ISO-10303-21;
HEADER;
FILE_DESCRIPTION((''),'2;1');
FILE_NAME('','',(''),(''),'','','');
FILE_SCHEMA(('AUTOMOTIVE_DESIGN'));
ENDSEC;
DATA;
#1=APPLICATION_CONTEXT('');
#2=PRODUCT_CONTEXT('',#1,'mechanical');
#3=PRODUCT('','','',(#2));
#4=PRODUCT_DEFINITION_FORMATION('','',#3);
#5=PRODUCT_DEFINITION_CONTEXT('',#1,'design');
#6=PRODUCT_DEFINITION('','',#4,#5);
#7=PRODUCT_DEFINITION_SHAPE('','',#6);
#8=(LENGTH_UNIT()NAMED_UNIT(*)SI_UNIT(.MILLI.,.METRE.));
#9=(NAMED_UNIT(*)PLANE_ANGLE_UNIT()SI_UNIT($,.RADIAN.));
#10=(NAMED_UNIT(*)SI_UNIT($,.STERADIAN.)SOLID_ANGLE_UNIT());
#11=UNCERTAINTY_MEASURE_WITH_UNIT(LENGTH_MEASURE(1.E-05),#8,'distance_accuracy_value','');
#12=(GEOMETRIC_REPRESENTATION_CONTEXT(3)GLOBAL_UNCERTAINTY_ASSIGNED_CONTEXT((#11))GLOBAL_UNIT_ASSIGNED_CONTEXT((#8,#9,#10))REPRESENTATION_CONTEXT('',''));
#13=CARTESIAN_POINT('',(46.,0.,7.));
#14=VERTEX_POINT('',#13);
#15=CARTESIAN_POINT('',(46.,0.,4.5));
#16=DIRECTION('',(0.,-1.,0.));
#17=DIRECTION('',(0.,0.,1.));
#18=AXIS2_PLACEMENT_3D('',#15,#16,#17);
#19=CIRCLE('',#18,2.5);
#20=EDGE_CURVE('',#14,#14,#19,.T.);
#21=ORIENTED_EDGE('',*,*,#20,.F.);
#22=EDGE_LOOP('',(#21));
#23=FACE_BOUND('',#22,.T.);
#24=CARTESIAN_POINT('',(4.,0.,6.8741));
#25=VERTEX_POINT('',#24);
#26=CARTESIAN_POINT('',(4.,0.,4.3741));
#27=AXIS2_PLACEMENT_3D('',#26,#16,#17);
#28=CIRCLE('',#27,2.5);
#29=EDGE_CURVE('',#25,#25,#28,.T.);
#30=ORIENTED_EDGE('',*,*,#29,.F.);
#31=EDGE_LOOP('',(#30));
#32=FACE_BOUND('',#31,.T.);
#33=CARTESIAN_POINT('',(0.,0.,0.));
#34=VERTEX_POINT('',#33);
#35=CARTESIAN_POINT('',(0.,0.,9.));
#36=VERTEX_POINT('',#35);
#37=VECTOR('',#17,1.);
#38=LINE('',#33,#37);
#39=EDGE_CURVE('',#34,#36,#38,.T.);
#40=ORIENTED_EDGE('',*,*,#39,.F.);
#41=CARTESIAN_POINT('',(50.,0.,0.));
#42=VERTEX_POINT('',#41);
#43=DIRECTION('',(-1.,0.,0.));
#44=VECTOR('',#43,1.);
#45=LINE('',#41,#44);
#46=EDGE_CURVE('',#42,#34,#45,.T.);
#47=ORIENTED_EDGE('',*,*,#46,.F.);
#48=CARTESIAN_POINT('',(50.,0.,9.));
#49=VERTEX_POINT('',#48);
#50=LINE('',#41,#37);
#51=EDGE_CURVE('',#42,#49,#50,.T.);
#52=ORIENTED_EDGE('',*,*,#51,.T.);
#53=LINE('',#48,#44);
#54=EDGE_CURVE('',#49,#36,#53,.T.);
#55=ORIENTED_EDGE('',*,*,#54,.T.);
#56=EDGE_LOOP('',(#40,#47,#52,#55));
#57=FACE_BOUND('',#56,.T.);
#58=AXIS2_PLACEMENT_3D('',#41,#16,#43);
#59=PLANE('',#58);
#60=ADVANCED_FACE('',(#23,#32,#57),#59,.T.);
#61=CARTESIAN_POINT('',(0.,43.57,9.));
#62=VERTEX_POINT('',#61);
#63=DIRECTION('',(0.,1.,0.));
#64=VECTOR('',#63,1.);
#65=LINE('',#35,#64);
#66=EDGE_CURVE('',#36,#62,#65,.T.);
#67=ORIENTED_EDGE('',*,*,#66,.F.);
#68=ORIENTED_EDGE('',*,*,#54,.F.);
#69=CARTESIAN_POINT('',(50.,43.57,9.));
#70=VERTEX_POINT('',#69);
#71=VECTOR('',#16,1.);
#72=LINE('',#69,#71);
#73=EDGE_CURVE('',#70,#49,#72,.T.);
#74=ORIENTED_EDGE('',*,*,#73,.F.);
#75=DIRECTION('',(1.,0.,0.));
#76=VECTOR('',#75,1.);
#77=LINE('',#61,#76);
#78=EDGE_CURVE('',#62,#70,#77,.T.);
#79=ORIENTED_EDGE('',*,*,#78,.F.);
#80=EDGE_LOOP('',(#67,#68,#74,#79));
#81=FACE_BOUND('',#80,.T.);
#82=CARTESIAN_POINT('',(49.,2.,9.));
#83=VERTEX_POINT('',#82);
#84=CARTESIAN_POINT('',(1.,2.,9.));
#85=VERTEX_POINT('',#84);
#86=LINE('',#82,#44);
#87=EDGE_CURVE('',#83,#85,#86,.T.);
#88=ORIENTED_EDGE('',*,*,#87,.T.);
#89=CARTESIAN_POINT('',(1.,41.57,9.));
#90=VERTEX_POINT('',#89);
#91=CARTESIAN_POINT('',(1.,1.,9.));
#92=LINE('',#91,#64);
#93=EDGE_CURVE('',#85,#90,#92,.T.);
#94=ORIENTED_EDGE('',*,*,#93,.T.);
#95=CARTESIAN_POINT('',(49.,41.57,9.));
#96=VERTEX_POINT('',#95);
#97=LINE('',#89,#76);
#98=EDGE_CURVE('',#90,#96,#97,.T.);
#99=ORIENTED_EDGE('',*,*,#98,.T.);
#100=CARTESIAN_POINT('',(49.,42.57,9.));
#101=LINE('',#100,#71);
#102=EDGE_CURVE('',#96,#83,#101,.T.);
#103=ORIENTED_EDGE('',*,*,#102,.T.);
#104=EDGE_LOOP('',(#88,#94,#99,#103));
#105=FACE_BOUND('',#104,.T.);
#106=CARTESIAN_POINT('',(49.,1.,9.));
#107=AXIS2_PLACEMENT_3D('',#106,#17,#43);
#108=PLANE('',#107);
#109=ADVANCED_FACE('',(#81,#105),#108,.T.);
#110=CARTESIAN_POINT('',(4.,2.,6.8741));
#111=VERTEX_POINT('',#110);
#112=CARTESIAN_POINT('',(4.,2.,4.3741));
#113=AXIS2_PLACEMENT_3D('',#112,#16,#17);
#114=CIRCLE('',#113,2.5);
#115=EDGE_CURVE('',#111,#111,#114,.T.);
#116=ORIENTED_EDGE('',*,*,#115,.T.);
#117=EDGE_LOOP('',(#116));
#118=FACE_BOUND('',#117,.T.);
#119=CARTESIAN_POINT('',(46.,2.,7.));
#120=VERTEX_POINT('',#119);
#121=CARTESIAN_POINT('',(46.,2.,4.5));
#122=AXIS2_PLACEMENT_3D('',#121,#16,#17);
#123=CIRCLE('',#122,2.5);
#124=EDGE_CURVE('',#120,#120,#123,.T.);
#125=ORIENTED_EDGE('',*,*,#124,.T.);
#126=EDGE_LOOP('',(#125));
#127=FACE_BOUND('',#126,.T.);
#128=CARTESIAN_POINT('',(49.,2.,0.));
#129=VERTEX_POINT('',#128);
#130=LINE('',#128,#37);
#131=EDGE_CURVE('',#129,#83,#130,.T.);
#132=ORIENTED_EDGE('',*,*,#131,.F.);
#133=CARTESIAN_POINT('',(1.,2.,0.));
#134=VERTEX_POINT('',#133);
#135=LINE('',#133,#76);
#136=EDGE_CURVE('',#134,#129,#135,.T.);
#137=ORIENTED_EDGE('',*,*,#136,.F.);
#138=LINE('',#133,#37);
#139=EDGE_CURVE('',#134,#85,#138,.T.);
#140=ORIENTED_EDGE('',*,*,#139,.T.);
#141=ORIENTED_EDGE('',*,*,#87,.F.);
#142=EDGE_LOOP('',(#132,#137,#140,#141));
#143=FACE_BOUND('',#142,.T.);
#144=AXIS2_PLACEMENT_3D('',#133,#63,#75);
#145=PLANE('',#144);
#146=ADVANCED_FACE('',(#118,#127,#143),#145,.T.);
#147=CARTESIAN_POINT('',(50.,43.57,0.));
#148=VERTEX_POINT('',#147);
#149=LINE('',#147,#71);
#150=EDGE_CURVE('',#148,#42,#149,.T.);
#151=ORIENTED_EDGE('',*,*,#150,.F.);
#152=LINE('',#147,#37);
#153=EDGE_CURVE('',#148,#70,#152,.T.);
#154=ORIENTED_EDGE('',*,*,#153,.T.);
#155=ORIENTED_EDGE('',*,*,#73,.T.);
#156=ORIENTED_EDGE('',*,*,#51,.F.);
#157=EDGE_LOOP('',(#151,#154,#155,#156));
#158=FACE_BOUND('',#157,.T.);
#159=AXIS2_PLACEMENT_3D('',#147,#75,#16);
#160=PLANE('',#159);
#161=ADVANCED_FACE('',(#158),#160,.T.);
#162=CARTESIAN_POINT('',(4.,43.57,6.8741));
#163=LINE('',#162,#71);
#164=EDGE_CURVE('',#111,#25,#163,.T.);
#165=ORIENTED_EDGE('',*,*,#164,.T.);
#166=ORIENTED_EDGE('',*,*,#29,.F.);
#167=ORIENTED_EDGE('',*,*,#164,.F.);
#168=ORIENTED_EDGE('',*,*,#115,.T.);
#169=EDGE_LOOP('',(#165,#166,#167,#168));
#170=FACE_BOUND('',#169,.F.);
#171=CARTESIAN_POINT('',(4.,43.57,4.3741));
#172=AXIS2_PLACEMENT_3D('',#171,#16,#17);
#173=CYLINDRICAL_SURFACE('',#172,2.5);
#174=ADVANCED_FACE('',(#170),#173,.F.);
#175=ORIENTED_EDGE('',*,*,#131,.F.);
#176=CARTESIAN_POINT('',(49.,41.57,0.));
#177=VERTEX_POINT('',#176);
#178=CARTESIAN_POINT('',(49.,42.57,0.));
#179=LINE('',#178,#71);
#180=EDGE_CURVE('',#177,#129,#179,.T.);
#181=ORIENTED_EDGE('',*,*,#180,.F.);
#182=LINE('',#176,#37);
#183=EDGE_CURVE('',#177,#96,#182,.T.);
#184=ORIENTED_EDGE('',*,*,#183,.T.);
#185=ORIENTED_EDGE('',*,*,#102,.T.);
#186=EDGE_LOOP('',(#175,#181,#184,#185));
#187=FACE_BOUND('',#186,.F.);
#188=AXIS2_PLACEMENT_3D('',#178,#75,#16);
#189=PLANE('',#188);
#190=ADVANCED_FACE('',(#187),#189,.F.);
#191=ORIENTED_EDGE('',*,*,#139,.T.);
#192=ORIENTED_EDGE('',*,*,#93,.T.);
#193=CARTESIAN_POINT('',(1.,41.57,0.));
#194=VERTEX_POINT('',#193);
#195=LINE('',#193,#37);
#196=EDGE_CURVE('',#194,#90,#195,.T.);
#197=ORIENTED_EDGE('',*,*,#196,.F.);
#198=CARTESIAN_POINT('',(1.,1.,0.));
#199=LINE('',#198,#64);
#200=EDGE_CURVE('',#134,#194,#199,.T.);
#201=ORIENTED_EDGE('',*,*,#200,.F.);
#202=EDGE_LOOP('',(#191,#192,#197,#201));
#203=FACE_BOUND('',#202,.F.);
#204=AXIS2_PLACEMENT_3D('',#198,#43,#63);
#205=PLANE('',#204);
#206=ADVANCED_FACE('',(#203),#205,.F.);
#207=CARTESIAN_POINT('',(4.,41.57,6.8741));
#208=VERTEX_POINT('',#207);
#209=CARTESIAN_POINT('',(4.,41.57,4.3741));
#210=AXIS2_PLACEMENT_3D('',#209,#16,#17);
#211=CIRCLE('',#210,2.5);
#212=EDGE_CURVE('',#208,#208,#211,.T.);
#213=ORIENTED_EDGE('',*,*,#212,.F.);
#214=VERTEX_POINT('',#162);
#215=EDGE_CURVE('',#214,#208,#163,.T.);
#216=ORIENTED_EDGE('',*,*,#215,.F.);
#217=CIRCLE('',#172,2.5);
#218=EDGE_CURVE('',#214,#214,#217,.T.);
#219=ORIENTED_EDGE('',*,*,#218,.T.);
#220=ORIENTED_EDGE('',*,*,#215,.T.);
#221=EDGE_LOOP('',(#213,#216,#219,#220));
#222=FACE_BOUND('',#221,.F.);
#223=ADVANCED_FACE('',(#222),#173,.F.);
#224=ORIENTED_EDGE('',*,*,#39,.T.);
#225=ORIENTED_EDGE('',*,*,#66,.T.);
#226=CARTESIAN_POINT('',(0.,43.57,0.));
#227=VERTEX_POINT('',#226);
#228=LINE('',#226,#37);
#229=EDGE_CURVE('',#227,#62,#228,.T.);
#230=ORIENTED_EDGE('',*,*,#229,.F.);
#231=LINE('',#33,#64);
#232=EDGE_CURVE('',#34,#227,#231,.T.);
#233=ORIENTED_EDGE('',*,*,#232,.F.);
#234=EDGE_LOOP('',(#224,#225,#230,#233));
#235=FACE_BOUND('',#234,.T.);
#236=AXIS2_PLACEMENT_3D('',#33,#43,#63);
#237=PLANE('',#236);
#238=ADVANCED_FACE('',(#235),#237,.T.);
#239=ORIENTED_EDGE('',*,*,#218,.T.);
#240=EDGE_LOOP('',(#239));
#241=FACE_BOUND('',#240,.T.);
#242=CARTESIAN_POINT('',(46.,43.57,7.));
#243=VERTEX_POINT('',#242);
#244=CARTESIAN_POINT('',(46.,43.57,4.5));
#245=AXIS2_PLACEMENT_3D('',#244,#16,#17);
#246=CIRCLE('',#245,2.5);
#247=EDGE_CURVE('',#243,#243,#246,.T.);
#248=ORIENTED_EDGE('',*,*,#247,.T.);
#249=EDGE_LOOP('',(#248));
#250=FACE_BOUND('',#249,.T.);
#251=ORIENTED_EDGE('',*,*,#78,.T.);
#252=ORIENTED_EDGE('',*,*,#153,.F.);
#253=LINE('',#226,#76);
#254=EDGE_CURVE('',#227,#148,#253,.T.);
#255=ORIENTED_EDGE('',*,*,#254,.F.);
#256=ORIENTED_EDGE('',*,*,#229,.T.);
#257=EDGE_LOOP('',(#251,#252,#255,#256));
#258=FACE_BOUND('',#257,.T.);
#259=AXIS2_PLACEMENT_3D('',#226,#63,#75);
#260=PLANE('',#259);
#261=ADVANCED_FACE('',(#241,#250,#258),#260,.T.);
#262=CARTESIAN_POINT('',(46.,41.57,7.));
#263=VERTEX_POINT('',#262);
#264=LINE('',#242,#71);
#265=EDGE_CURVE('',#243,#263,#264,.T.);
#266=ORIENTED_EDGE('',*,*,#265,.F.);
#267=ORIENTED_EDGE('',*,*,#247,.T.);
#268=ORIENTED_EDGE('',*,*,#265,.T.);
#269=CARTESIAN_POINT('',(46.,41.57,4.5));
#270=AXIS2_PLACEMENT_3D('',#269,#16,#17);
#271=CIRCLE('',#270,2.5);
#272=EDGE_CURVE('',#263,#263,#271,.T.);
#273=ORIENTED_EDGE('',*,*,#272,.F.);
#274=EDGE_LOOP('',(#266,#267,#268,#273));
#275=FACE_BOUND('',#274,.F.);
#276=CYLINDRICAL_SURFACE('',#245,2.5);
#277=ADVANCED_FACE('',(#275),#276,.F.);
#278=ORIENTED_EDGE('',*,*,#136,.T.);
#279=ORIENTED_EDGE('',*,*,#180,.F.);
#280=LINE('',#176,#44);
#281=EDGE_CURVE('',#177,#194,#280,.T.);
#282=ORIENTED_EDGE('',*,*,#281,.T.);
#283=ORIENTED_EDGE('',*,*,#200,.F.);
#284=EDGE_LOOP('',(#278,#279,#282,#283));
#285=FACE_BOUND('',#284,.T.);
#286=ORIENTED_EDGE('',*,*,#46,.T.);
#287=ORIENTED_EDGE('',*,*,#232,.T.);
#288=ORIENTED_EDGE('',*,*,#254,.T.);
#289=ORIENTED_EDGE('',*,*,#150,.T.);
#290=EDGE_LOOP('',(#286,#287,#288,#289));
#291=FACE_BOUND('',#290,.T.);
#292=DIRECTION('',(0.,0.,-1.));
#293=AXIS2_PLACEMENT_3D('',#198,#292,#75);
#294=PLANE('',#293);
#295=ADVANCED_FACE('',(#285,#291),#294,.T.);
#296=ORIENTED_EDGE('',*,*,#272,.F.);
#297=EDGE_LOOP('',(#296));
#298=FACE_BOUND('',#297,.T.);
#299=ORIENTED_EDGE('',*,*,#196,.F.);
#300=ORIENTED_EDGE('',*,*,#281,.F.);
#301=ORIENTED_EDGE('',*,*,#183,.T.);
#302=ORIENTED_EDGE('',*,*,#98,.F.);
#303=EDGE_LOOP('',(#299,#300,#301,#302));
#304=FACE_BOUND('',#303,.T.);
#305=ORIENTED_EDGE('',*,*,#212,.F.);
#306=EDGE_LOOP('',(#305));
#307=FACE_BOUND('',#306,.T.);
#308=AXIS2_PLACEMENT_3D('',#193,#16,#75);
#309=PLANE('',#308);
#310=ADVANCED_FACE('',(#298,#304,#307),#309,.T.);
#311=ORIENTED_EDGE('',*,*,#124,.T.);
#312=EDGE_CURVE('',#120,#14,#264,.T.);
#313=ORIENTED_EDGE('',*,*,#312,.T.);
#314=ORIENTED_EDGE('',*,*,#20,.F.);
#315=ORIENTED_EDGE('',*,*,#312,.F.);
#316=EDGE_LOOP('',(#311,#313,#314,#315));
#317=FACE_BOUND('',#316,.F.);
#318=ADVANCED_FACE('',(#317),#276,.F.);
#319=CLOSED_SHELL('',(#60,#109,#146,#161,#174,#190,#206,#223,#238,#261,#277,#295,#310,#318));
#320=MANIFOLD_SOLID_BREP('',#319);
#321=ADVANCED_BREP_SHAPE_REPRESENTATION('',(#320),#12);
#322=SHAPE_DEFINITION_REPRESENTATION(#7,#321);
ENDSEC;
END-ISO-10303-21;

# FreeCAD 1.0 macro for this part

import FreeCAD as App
import Part
import Sketcher
Q = App.Units.Quantity


def add_polygon(sketch, points):
    """Adds a closed chain of lines whose ends are joined by coincident constraints."""
    first, n = sketch.GeometryCount, len(points)
    for a, b in zip(points, points[1:] + points[:1]):
        sketch.addGeometry(Part.LineSegment(App.Vector(*a, 0), App.Vector(*b, 0)), False)
    for i in range(n):
        sketch.addConstraint(Sketcher.Constraint("Coincident", first + i, 2, first + (i + 1) % n, 1))

doc = App.newDocument("Part")
body = doc.addObject("PartDesign::Body", "Body")

sketch1 = body.newObject("Sketcher::SketchObject", "Sketch")
sketch1.AttachmentSupport = (doc.getObject("XY_Plane"), [""])
sketch1.MapMode = "FlatFace"
add_polygon(sketch1, [(0, 44), (0, 0), (50, 0), (50, 44)])
add_polygon(sketch1, [(49, 1), (1, 1), (1, 43), (49, 43)])
sketch1.addConstraint([
    Sketcher.Constraint("Vertical", 0),
    Sketcher.Constraint("Horizontal", 1),
    Sketcher.Constraint("Vertical", 2),
    Sketcher.Constraint("Horizontal", 3),
    Sketcher.Constraint("Horizontal", 4),
    Sketcher.Constraint("Vertical", 5),
    Sketcher.Constraint("Horizontal", 6),
    Sketcher.Constraint("Vertical", 7),
    Sketcher.Constraint("Coincident", 0, 2, -1, 1),
    Sketcher.Constraint("DistanceX", 1, 1, 1, 2, Q("50 mm")),
    Sketcher.Constraint("DistanceX", 4, 2, 4, 1, Q("48 mm")),
    Sketcher.Constraint("DistanceY", 0, 2, 0, 1, Q("43.57 mm")),
    Sketcher.Constraint("DistanceY", 5, 1, 5, 2, Q("41.57 mm")),
    Sketcher.Constraint("DistanceX", -1, 1, 4, 2, Q("1 mm")),
    Sketcher.Constraint("DistanceY", -1, 1, 4, 2, Q("1 mm")),
])
pad1 = body.newObject("PartDesign::Pad", "Pad")
pad1.Profile = sketch1
pad1.Length = 9

sketch2 = body.newObject("Sketcher::SketchObject", "Sketch001")
sketch2.AttachmentSupport = (doc.getObject("XZ_Plane"), [""])
sketch2.MapMode = "FlatFace"
sketch2.AttachmentOffset = App.Placement(App.Vector(0, 0, -42.57), App.Rotation())
add_polygon(sketch2, [(1, 0), (49, 0), (49, 9), (1, 9)])
sketch2.addConstraint([
    Sketcher.Constraint("Horizontal", 0),
    Sketcher.Constraint("Vertical", 1),
    Sketcher.Constraint("Horizontal", 2),
    Sketcher.Constraint("Vertical", 3),
    Sketcher.Constraint("PointOnObject", 0, 2, -1),
    Sketcher.Constraint("DistanceX", 0, 1, 0, 2, Q("48 mm")),
    Sketcher.Constraint("DistanceY", 1, 1, 1, 2, Q("9 mm")),
    Sketcher.Constraint("DistanceX", -1, 1, 0, 2, Q("49 mm")),
])
pad2 = body.newObject("PartDesign::Pad", "Pad001")
pad2.Profile = sketch2
pad2.Length = 1

sketch3 = body.newObject("Sketcher::SketchObject", "Sketch002")
sketch3.AttachmentSupport = (doc.getObject("XZ_Plane"), [""])
sketch3.MapMode = "FlatFace"
sketch3.AttachmentOffset = App.Placement(App.Vector(0, 0, -1), App.Rotation())
add_polygon(sketch3, [(49, 0), (1, 0), (1, 9), (49, 9)])
sketch3.addConstraint([
    Sketcher.Constraint("Horizontal", 0),
    Sketcher.Constraint("Vertical", 1),
    Sketcher.Constraint("Horizontal", 2),
    Sketcher.Constraint("Vertical", 3),
    Sketcher.Constraint("PointOnObject", 0, 2, -1),
    Sketcher.Constraint("DistanceX", 0, 2, 0, 1, Q("48 mm")),
    Sketcher.Constraint("DistanceY", 1, 1, 1, 2, Q("9 mm")),
    Sketcher.Constraint("DistanceX", -1, 1, 0, 2, Q("1 mm")),
])
pad3 = body.newObject("PartDesign::Pad", "Pad002")
pad3.Profile = sketch3
pad3.Length = 1
pad3.Reversed = True

sketch4 = body.newObject("Sketcher::SketchObject", "Sketch003")
sketch4.AttachmentSupport = (doc.getObject("XZ_Plane"), [""])
sketch4.MapMode = "FlatFace"
sketch4.AttachmentOffset = App.Placement(App.Vector(0, 0, -43.57), App.Rotation())
sketch4.addGeometry([
    Part.Circle(App.Vector(4, 4.4, 0), App.Vector(0, 0, 1), 2.5),
    Part.Circle(App.Vector(46, 4.5, 0), App.Vector(0, 0, 1), 2.5),
], False)
sketch4.addConstraint([
    Sketcher.Constraint("Equal", 0, 1),
    Sketcher.Constraint("Diameter", 0, Q("5 mm")),
    Sketcher.Constraint("DistanceX", -1, 1, 0, 3, Q("4 mm")),
    Sketcher.Constraint("DistanceX", -1, 1, 1, 3, Q("46 mm")),
    Sketcher.Constraint("DistanceY", -1, 1, 1, 3, Q("4.5 mm")),
    Sketcher.Constraint("DistanceY", -1, 1, 0, 3, Q("4.374 mm")),
])
doc.recompute()
hole = body.newObject("PartDesign::Hole", "Hole")
hole.Profile = sketch4
hole.ThreadType = "None"
hole.Diameter = 5
hole.DepthType = "ThroughAll"
hole.Reversed = True

doc.recompute()
